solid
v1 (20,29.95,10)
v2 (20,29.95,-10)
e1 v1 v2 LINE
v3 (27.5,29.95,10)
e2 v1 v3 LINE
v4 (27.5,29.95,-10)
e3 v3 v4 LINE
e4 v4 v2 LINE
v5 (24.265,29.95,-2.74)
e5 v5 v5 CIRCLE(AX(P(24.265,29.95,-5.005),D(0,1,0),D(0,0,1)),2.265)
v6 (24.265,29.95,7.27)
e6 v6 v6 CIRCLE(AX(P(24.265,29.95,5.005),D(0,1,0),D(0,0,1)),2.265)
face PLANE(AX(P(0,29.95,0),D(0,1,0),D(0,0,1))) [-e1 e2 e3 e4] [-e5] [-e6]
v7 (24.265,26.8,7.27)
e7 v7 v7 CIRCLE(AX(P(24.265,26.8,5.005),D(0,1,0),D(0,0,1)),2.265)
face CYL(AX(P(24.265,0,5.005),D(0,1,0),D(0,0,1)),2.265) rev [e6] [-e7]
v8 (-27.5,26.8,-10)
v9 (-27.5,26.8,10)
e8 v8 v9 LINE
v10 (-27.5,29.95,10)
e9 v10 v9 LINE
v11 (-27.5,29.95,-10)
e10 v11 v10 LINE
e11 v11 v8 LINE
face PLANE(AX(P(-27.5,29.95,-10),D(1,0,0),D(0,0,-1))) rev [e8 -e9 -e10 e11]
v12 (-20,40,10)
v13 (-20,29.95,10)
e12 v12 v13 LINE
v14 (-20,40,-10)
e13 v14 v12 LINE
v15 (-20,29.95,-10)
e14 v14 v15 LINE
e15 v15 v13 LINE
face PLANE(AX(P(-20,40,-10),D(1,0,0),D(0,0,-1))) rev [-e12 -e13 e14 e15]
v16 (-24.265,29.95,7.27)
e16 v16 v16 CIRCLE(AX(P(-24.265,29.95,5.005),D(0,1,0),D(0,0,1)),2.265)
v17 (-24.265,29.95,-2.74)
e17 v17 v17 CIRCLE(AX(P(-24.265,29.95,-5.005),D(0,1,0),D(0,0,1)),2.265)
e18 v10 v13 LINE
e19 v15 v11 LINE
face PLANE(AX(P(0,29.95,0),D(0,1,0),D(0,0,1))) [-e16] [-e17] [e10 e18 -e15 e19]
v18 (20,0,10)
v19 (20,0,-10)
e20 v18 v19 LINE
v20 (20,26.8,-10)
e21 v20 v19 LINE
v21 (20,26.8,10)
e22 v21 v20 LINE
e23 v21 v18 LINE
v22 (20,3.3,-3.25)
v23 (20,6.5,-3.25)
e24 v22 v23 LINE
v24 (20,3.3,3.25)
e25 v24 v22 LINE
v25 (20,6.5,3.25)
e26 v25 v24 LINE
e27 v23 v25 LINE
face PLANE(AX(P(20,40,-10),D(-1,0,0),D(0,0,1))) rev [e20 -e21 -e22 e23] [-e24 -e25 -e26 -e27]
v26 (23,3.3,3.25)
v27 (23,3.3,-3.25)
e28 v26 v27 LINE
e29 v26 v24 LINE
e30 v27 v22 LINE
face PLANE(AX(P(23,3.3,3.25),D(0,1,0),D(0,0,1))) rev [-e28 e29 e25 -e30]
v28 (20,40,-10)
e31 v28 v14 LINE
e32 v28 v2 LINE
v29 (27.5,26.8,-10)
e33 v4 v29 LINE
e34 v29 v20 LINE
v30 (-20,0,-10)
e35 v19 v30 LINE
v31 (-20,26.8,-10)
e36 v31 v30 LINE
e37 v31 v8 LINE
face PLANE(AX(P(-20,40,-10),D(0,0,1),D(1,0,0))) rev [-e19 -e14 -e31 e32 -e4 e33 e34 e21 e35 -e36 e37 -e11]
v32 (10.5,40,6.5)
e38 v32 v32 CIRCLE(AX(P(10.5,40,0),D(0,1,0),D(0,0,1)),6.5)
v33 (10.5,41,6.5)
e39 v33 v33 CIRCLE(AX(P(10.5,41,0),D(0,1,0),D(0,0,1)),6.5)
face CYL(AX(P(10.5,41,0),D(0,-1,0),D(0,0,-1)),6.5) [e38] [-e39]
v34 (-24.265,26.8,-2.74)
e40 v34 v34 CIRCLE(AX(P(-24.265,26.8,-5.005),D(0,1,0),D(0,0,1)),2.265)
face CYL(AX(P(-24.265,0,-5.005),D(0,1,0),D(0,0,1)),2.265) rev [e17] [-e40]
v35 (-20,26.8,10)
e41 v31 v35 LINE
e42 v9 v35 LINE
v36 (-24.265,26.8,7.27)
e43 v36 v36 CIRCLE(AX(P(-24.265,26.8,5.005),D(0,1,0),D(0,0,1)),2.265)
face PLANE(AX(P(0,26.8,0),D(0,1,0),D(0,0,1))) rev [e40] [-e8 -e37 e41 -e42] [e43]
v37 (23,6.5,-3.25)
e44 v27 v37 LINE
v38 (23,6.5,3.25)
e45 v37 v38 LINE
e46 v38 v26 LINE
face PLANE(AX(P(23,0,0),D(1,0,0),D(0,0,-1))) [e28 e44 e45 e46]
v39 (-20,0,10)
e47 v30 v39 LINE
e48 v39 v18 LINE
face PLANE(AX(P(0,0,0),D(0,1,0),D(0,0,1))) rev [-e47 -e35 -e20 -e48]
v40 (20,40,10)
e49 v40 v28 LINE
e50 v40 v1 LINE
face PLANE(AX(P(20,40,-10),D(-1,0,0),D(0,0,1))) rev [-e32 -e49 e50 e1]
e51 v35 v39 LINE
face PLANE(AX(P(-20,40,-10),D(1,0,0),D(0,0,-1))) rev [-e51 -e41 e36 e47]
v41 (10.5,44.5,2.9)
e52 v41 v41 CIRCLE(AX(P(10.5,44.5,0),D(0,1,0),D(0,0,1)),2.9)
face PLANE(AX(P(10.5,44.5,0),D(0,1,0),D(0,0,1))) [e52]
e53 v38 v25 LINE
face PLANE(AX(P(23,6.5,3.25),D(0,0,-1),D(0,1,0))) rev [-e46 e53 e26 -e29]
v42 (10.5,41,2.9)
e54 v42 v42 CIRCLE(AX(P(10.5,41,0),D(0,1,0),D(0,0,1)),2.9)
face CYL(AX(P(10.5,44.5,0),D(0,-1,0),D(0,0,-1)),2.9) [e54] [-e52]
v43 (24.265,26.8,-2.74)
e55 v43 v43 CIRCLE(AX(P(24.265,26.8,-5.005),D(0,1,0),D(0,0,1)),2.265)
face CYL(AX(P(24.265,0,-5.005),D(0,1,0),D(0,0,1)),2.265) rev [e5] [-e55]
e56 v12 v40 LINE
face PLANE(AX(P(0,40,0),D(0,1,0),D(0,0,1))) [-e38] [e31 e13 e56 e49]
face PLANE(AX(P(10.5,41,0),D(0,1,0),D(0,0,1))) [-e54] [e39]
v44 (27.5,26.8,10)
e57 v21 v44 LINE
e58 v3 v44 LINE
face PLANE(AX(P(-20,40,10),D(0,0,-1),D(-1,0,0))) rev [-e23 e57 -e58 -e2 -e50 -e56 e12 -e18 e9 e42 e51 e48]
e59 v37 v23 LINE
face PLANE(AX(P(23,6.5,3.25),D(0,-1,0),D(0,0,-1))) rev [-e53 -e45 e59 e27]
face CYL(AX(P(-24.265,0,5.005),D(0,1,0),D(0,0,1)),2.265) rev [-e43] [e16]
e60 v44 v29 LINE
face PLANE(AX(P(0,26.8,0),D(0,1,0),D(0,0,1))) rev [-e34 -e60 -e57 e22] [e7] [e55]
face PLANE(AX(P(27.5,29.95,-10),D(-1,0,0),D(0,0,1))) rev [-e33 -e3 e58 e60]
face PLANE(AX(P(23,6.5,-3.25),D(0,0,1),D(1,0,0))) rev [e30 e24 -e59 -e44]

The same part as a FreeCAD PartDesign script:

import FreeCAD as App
import Part
import Sketcher

V = App.Vector


def add_polygon(sketch, points):
    """Adds a closed chain of lines whose ends are joined by coincident constraints."""
    first, n = sketch.GeometryCount, len(points)
    for a, b in zip(points, points[1:] + points[:1]):
        sketch.addGeometry(Part.LineSegment(App.Vector(*a, 0), App.Vector(*b, 0)), False)
    for i in range(n):
        sketch.addConstraint(Sketcher.Constraint("Coincident", first + i, 2, first + (i + 1) % n, 1))

doc = App.newDocument("Part")
params = doc.addObject("Spreadsheet::Sheet", "Params")
for row, (alias, value) in enumerate([
    ("sketch1_width", "40 mm"),
    ("sketch1_height", "20 mm"),
    ("pad1_length", "40 mm"),
    ("sketch2_width", "55 mm"),
    ("sketch2_height", "20 mm"),
    ("pad2_length", "3.15 mm"),
    ("sketch3_diameter", "4.53 mm"),
    ("sketch4_diameter", "13 mm"),
    ("pad3_length", "1 mm"),
    ("sketch5_diameter", "5.8 mm"),
    ("pad4_length", "3.5 mm"),
    ("sketch6_width", "3.2 mm"),
    ("sketch6_height", "6.5 mm"),
    ("pad5_length", "3 mm"),
], start=1):
    params.set(f"A{row}", alias)
    params.set(f"B{row}", "=" + value)
    params.setAlias(f"B{row}", alias)

body = doc.addObject("PartDesign::Body", "Body")

# Sketch on XZ plane
sketch1 = body.newObject("Sketcher::SketchObject", "Sketch")
sketch1.AttachmentSupport = (doc.getObject("XZ_Plane"), [""])
sketch1.MapMode = "FlatFace"
add_polygon(sketch1, [(-20, -10), (-20, 10), (20, 10), (20, -10)])  # lines 0-3
sketch1.addConstraint([
    Sketcher.Constraint("Vertical", 0),
    Sketcher.Constraint("Horizontal", 1),
    Sketcher.Constraint("Vertical", 2),
    Sketcher.Constraint("Horizontal", 3),
    Sketcher.Constraint("Symmetric", 0, 2, 2, 2, -1, 1),
    Sketcher.Constraint("DistanceX", 1, 1, 1, 2, 40.0),
    Sketcher.Constraint("DistanceY", 0, 1, 0, 2, 20.0),
])
sketch1.setExpression("Constraints[9]", "Params.sketch1_width")
sketch1.setExpression("Constraints[10]", "Params.sketch1_height")
pad1 = body.newObject("PartDesign::Pad", "Pad")
pad1.Profile = sketch1
pad1.setExpression("Length", "Params.pad1_length")
pad1.Reversed = True

# Sketch on XZ plane
sketch2 = body.newObject("Sketcher::SketchObject", "Sketch001")
sketch2.AttachmentSupport = (doc.getObject("XZ_Plane"), [""])
sketch2.MapMode = "FlatFace"
sketch2.AttachmentOffset = App.Placement(V(0, 0, -26.8), App.Rotation())
add_polygon(sketch2, [(-28, -10), (-28, 10), (28, 10), (28, -10)])  # lines 0-3
sketch2.addConstraint([
    Sketcher.Constraint("Vertical", 0),
    Sketcher.Constraint("Horizontal", 1),
    Sketcher.Constraint("Vertical", 2),
    Sketcher.Constraint("Horizontal", 3),
    Sketcher.Constraint("Symmetric", 0, 2, 2, 2, -1, 1),
    Sketcher.Constraint("DistanceX", 1, 1, 1, 2, 55.0),
    Sketcher.Constraint("DistanceY", 0, 1, 0, 2, 20.0),
])
sketch2.setExpression("Constraints[9]", "Params.sketch2_width")
sketch2.setExpression("Constraints[10]", "Params.sketch2_height")
pad2 = body.newObject("PartDesign::Pad", "Pad001")
pad2.Profile = sketch2
pad2.setExpression("Length", "Params.pad2_length")
pad2.Reversed = True

# Sketch on XZ plane
sketch3 = body.newObject("Sketcher::SketchObject", "Sketch002")
sketch3.AttachmentSupport = (doc.getObject("XZ_Plane"), [""])
sketch3.MapMode = "FlatFace"
sketch3.AttachmentOffset = App.Placement(V(0, 0, -29.95), App.Rotation())
sketch3.addGeometry([
    Part.Circle(V(-24.3, -5, 0), V(0, 0, 1), 2.3),
    Part.Circle(V(-24.3, 5, 0), V(0, 0, 1), 2.3),
    Part.Circle(V(24.3, 5, 0), V(0, 0, 1), 2.3),
    Part.Circle(V(24.3, -5, 0), V(0, 0, 1), 2.3),
], False)
sketch3.addConstraint([
    Sketcher.Constraint("Equal", 0, 1),
    Sketcher.Constraint("Equal", 1, 2),
    Sketcher.Constraint("Equal", 2, 3),
    Sketcher.Constraint("Symmetric", 0, 3, 2, 3, -1, 1),
    Sketcher.Constraint("Symmetric", 1, 3, 3, 3, -1, 1),
    Sketcher.Constraint("Symmetric", 1, 3, 2, 3, -2),
    Sketcher.Constraint("Diameter", 0, 4.53),
    Sketcher.Constraint("DistanceY", 0, 3, 1, 3, 10.01),
    Sketcher.Constraint("DistanceX", 1, 3, 2, 3, 48.53),
])
sketch3.setExpression("Constraints[6]", "Params.sketch3_diameter")
pocket1 = body.newObject("PartDesign::Pocket", "Pocket")
pocket1.Profile = sketch3
pocket1.Type = "ThroughAll"
pocket1.Midplane = True

# Sketch on XZ plane
sketch4 = body.newObject("Sketcher::SketchObject", "Sketch003")
sketch4.AttachmentSupport = (doc.getObject("XZ_Plane"), [""])
sketch4.MapMode = "FlatFace"
sketch4.AttachmentOffset = App.Placement(V(0, 0, -40), App.Rotation())
sketch4.addGeometry(Part.Circle(V(10, 0, 0), V(0, 0, 1), 6), False)
sketch4.addConstraint([
    Sketcher.Constraint("PointOnObject", 0, 3, -1),
    Sketcher.Constraint("Diameter", 0, 13.0),
    Sketcher.Constraint("DistanceX", -1, 1, 0, 3, 10.5),
])
sketch4.setExpression("Constraints[1]", "Params.sketch4_diameter")
pad3 = body.newObject("PartDesign::Pad", "Pad002")
pad3.Profile = sketch4
pad3.setExpression("Length", "Params.pad3_length")
pad3.Reversed = True

# Sketch on XZ plane
sketch5 = body.newObject("Sketcher::SketchObject", "Sketch004")
sketch5.AttachmentSupport = (doc.getObject("XZ_Plane"), [""])
sketch5.MapMode = "FlatFace"
sketch5.AttachmentOffset = App.Placement(V(0, 0, -41), App.Rotation())
sketch5.addGeometry(Part.Circle(V(10.5, 0, 0), V(0, 0, 1), 2.9), False)
sketch5.addConstraint([
    Sketcher.Constraint("PointOnObject", 0, 3, -1),
    Sketcher.Constraint("Diameter", 0, 5.8),
    Sketcher.Constraint("DistanceX", -1, 1, 0, 3, 10.5),
])
sketch5.setExpression("Constraints[1]", "Params.sketch5_diameter")
pad4 = body.newObject("PartDesign::Pad", "Pad003")
pad4.Profile = sketch5
pad4.setExpression("Length", "Params.pad4_length")
pad4.Reversed = True

# Sketch on YZ plane
sketch6 = body.newObject("Sketcher::SketchObject", "Sketch005")
sketch6.AttachmentSupport = (doc.getObject("YZ_Plane"), [""])
sketch6.MapMode = "FlatFace"
sketch6.AttachmentOffset = App.Placement(V(0, 0, 20), App.Rotation())
add_polygon(sketch6, [(6.5, 3.2), (3.3, 3.2), (3.3, -3.2), (6.5, -3.2)])  # lines 0-3
sketch6.addConstraint([
    Sketcher.Constraint("Horizontal", 0),
    Sketcher.Constraint("Vertical", 1),
    Sketcher.Constraint("Horizontal", 2),
    Sketcher.Constraint("Vertical", 3),
    Sketcher.Constraint("DistanceX", 0, 2, 0, 1, 3.2),
    Sketcher.Constraint("DistanceY", 1, 2, 1, 1, 6.5),
    Sketcher.Constraint("DistanceX", -1, 1, 0, 2, 3.3),
    Sketcher.Constraint("DistanceY", -1, 1, 0, 2, 3.25),
])
sketch6.setExpression("Constraints[8]", "Params.sketch6_width")
sketch6.setExpression("Constraints[9]", "Params.sketch6_height")
pad5 = body.newObject("PartDesign::Pad", "Pad004")
pad5.Profile = sketch6
pad5.setExpression("Length", "Params.pad5_length")

doc.recompute()
